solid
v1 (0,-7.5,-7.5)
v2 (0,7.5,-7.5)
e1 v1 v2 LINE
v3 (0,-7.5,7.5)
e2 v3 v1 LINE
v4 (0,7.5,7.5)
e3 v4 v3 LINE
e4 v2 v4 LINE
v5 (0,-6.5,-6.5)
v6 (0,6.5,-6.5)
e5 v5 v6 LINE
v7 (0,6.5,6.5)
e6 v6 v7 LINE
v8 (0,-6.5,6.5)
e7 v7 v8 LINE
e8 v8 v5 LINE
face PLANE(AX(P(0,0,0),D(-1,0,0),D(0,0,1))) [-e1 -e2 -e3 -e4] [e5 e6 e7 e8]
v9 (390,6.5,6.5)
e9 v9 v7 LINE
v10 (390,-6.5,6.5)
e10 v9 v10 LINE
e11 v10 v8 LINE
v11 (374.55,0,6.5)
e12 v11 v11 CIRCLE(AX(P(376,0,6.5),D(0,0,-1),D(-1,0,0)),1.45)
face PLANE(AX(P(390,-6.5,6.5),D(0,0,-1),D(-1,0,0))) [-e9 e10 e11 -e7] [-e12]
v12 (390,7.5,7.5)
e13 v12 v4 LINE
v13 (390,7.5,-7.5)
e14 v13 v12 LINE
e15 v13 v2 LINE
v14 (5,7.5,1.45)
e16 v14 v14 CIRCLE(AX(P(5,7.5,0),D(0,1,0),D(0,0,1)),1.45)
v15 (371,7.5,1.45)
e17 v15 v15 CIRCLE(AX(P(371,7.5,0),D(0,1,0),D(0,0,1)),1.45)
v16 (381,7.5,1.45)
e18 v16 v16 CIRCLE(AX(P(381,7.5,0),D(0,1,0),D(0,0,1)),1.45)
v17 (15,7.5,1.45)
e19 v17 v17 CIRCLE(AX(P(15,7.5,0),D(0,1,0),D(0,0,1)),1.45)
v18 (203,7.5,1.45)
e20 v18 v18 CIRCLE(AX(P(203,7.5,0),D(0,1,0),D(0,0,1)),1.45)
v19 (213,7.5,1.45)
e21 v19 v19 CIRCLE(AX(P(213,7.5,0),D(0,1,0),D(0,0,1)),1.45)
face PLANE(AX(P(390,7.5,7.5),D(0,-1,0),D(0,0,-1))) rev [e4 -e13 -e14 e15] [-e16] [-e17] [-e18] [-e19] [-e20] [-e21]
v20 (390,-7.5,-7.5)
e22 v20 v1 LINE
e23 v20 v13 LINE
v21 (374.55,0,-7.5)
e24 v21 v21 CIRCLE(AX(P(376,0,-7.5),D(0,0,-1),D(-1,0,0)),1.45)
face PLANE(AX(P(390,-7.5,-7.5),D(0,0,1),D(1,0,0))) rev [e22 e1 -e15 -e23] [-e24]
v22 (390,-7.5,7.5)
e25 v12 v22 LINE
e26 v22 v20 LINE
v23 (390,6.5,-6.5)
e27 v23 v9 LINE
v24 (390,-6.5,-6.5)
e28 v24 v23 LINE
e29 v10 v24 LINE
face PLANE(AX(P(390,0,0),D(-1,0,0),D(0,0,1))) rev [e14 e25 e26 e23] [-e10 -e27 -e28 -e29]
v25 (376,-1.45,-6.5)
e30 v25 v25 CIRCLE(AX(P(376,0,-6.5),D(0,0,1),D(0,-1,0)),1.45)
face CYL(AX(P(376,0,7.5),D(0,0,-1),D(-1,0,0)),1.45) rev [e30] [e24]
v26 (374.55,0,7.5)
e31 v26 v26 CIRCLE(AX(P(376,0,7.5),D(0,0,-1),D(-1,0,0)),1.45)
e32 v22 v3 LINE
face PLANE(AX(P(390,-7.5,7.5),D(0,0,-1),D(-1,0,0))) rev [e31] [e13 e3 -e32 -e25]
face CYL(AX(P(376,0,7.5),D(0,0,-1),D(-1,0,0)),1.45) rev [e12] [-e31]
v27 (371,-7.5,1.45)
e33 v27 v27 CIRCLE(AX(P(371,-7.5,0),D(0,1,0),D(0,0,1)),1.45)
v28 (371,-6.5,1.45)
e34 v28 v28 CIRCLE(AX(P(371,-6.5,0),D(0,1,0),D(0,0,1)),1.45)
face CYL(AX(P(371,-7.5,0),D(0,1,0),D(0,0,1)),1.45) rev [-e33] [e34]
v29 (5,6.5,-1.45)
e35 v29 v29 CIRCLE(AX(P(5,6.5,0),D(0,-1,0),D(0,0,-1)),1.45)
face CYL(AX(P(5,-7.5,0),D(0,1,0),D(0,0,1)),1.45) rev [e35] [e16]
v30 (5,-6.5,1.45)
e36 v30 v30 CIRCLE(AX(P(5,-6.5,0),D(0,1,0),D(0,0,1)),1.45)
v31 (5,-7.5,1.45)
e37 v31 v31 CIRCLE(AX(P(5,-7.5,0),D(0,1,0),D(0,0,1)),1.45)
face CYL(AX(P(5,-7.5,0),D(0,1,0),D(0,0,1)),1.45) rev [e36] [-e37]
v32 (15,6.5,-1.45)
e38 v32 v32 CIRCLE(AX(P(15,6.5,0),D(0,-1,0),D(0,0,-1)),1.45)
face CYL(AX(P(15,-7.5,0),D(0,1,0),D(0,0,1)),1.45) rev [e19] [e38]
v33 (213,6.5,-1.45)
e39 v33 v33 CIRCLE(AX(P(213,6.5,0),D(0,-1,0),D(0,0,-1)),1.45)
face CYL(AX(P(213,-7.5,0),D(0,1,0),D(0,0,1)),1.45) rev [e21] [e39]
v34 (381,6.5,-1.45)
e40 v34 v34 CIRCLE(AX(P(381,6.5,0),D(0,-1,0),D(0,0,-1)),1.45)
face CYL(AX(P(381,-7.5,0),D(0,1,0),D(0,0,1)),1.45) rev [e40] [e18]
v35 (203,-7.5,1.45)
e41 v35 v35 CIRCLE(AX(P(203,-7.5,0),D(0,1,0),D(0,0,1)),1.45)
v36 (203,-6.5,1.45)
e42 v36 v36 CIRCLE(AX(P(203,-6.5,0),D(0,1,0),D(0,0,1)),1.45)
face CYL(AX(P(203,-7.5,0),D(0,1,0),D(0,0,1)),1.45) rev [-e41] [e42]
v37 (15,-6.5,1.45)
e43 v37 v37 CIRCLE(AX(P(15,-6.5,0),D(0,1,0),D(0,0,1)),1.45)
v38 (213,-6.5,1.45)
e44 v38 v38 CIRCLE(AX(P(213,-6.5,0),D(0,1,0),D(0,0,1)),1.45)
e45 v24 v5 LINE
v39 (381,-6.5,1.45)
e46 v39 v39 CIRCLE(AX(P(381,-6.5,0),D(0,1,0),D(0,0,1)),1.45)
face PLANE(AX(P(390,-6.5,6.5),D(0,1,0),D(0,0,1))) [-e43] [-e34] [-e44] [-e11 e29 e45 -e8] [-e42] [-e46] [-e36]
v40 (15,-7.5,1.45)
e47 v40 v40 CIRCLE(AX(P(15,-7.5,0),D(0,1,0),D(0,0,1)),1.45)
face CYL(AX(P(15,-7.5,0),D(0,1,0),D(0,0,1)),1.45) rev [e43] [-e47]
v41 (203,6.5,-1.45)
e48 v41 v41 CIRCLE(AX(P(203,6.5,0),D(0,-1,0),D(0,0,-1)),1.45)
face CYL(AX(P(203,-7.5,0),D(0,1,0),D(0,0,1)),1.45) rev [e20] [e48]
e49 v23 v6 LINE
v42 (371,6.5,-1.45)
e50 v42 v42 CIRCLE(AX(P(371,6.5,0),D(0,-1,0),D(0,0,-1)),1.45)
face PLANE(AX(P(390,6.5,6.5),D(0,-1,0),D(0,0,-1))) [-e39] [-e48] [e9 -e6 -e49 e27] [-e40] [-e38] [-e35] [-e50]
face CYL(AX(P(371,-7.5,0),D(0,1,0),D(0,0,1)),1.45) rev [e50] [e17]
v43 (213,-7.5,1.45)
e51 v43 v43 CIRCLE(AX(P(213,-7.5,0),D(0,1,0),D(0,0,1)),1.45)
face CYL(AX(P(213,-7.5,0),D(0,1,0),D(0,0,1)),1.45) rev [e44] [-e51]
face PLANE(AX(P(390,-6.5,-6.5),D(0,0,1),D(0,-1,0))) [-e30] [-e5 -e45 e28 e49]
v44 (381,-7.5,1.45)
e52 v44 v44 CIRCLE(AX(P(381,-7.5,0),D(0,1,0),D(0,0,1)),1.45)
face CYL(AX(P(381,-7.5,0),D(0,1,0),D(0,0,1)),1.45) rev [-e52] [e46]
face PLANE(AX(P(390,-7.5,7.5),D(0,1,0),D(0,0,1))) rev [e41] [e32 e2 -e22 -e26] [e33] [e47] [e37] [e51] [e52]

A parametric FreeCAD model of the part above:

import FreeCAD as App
import Part
import Sketcher
from FreeCAD import Vector

doc = App.newDocument("Part")
body = doc.addObject("PartDesign::Body", "Body")

sketch1 = doc.addObject("Sketcher::SketchObject", "Sketch")
body.addObject(sketch1)
sketch1.AttachmentSupport = (doc.YZ_Plane, [""])
sketch1.MapMode = "FlatFace"
sketch1.addGeometry([
    Part.LineSegment(Vector(8, 8, 0), Vector(-8, 8, 0)),
    Part.LineSegment(Vector(-8, 8, 0), Vector(-8, -8, 0)),
    Part.LineSegment(Vector(-8, -8, 0), Vector(8, -8, 0)),
    Part.LineSegment(Vector(8, -8, 0), Vector(8, 8, 0)),
    Part.LineSegment(Vector(-6, -6, 0), Vector(-6, 6, 0)),
    Part.LineSegment(Vector(-6, 6, 0), Vector(6, 6, 0)),
    Part.LineSegment(Vector(6, 6, 0), Vector(6, -6, 0)),
    Part.LineSegment(Vector(6, -6, 0), Vector(-6, -6, 0)),
], False)
sketch1.addConstraint([
    Sketcher.Constraint("Coincident", 0, 2, 1, 1),
    Sketcher.Constraint("Coincident", 1, 2, 2, 1),
    Sketcher.Constraint("Coincident", 2, 2, 3, 1),
    Sketcher.Constraint("Coincident", 3, 2, 0, 1),
    Sketcher.Constraint("Coincident", 4, 2, 5, 1),
    Sketcher.Constraint("Coincident", 5, 2, 6, 1),
    Sketcher.Constraint("Coincident", 6, 2, 7, 1),
    Sketcher.Constraint("Coincident", 7, 2, 4, 1),
    Sketcher.Constraint("Horizontal", 0),
    Sketcher.Constraint("Vertical", 1),
    Sketcher.Constraint("Horizontal", 2),
    Sketcher.Constraint("Vertical", 3),
    Sketcher.Constraint("Vertical", 4),
    Sketcher.Constraint("Horizontal", 5),
    Sketcher.Constraint("Vertical", 6),
    Sketcher.Constraint("Horizontal", 7),
    Sketcher.Constraint("Symmetric", 0, 2, 2, 2, -1, 1),
    Sketcher.Constraint("Symmetric", 4, 2, 6, 2, -1, 1),
    Sketcher.Constraint("Equal", 2, 1),
    Sketcher.Constraint("Equal", 7, 4),
    Sketcher.Constraint("DistanceX", 0, 2, 0, 1, 15.0),
    Sketcher.Constraint("DistanceX", 5, 1, 5, 2, 13.0),
])
pad1 = doc.addObject("PartDesign::Pad", "Pad")
body.addObject(pad1)
pad1.Profile = sketch1
pad1.Length = 390

sketch2 = doc.addObject("Sketcher::SketchObject", "Sketch001")
body.addObject(sketch2)
sketch2.AttachmentSupport = (doc.XZ_Plane, [""])
sketch2.MapMode = "FlatFace"
sketch2.AttachmentOffset = App.Placement(Vector(0, 0, -7.5), App.Rotation())
sketch2.addGeometry([
    Part.Circle(Vector(203, 0, 0), Vector(0, 0, 1), 1.4),
    Part.Circle(Vector(213, 0, 0), Vector(0, 0, 1), 1.4),
    Part.Circle(Vector(15, 0, 0), Vector(0, 0, 1), 1.4),
    Part.Circle(Vector(5, 0, 0), Vector(0, 0, 1), 1.4),
    Part.Circle(Vector(381, 0, 0), Vector(0, 0, 1), 1.4),
    Part.Circle(Vector(371, 0, 0), Vector(0, 0, 1), 1.4),
], False)
sketch2.addConstraint([
    Sketcher.Constraint("Equal", 0, 1),
    Sketcher.Constraint("Equal", 1, 2),
    Sketcher.Constraint("Equal", 2, 3),
    Sketcher.Constraint("Equal", 3, 4),
    Sketcher.Constraint("Equal", 4, 5),
    Sketcher.Constraint("PointOnObject", 0, 3, -1),
    Sketcher.Constraint("PointOnObject", 1, 3, -1),
    Sketcher.Constraint("PointOnObject", 2, 3, -1),
    Sketcher.Constraint("PointOnObject", 3, 3, -1),
    Sketcher.Constraint("PointOnObject", 4, 3, -1),
    Sketcher.Constraint("PointOnObject", 5, 3, -1),
    Sketcher.Constraint("Diameter", 0, 2.9),
    Sketcher.Constraint("DistanceX", -1, 1, 0, 3, 203.0),
    Sketcher.Constraint("DistanceX", -1, 1, 1, 3, 213.0),
    Sketcher.Constraint("DistanceX", -1, 1, 2, 3, 15.0),
    Sketcher.Constraint("DistanceX", -1, 1, 3, 3, 5.0),
    Sketcher.Constraint("DistanceX", -1, 1, 4, 3, 381.0),
    Sketcher.Constraint("DistanceX", -1, 1, 5, 3, 371.0),
])
pocket1 = doc.addObject("PartDesign::Pocket", "Pocket")
body.addObject(pocket1)
pocket1.Profile = sketch2
pocket1.Type = "ThroughAll"
pocket1.Reversed = True

sketch3 = doc.addObject("Sketcher::SketchObject", "Sketch002")
body.addObject(sketch3)
sketch3.AttachmentSupport = (doc.XY_Plane, [""])
sketch3.MapMode = "FlatFace"
sketch3.AttachmentOffset = App.Placement(Vector(0, 0, -7.5), App.Rotation())
sketch3.addGeometry(Part.Circle(Vector(376, 0, 0), Vector(0, 0, 1), 1.4), False)
sketch3.addConstraint([
    Sketcher.Constraint("PointOnObject", 0, 3, -1),
    Sketcher.Constraint("Diameter", 0, 2.9),
    Sketcher.Constraint("DistanceX", -1, 1, 0, 3, 376.0),
])
pocket2 = doc.addObject("PartDesign::Pocket", "Pocket001")
body.addObject(pocket2)
pocket2.Profile = sketch3
pocket2.Type = "ThroughAll"
pocket2.Reversed = True

doc.recompute()
